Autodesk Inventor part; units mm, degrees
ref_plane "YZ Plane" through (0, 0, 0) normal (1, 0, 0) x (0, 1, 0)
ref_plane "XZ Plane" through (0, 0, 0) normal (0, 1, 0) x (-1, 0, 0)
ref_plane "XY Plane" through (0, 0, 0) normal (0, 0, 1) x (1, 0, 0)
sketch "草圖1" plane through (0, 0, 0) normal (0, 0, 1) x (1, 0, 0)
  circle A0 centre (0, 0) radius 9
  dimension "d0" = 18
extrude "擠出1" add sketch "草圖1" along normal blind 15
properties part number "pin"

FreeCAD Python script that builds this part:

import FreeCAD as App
import Part
import Sketcher
from FreeCAD import Vector

doc = App.newDocument("Part")
params = doc.addObject("Spreadsheet::Sheet", "Params")
for row, (alias, value) in enumerate([
    ("sketch1_diameter", "18 mm"),
    ("pad1_length", "15 mm"),
], start=1):
    params.set(f"A{row}", alias)
    params.set(f"B{row}", "=" + value)
    params.setAlias(f"B{row}", alias)

body = doc.addObject("PartDesign::Body", "Body")

sketch1 = doc.addObject("Sketcher::SketchObject", "Sketch")
body.addObject(sketch1)
sketch1.AttachmentSupport = (doc.XY_Plane, [""])
sketch1.MapMode = "FlatFace"
sketch1.addGeometry(Part.Circle(Vector(0, 0, 0), Vector(0, 0, 1), 9), False)
sketch1.addConstraint(Sketcher.Constraint("Coincident", 0, 3, -1, 1))
sketch1.addConstraint(Sketcher.Constraint("Diameter", 0, 18.0))
sketch1.setExpression("Constraints[1]", "Params.sketch1_diameter")
pad1 = doc.addObject("PartDesign::Pad", "Pad")
body.addObject(pad1)
pad1.Profile = sketch1
pad1.setExpression("Length", "Params.pad1_length")

doc.recompute()
